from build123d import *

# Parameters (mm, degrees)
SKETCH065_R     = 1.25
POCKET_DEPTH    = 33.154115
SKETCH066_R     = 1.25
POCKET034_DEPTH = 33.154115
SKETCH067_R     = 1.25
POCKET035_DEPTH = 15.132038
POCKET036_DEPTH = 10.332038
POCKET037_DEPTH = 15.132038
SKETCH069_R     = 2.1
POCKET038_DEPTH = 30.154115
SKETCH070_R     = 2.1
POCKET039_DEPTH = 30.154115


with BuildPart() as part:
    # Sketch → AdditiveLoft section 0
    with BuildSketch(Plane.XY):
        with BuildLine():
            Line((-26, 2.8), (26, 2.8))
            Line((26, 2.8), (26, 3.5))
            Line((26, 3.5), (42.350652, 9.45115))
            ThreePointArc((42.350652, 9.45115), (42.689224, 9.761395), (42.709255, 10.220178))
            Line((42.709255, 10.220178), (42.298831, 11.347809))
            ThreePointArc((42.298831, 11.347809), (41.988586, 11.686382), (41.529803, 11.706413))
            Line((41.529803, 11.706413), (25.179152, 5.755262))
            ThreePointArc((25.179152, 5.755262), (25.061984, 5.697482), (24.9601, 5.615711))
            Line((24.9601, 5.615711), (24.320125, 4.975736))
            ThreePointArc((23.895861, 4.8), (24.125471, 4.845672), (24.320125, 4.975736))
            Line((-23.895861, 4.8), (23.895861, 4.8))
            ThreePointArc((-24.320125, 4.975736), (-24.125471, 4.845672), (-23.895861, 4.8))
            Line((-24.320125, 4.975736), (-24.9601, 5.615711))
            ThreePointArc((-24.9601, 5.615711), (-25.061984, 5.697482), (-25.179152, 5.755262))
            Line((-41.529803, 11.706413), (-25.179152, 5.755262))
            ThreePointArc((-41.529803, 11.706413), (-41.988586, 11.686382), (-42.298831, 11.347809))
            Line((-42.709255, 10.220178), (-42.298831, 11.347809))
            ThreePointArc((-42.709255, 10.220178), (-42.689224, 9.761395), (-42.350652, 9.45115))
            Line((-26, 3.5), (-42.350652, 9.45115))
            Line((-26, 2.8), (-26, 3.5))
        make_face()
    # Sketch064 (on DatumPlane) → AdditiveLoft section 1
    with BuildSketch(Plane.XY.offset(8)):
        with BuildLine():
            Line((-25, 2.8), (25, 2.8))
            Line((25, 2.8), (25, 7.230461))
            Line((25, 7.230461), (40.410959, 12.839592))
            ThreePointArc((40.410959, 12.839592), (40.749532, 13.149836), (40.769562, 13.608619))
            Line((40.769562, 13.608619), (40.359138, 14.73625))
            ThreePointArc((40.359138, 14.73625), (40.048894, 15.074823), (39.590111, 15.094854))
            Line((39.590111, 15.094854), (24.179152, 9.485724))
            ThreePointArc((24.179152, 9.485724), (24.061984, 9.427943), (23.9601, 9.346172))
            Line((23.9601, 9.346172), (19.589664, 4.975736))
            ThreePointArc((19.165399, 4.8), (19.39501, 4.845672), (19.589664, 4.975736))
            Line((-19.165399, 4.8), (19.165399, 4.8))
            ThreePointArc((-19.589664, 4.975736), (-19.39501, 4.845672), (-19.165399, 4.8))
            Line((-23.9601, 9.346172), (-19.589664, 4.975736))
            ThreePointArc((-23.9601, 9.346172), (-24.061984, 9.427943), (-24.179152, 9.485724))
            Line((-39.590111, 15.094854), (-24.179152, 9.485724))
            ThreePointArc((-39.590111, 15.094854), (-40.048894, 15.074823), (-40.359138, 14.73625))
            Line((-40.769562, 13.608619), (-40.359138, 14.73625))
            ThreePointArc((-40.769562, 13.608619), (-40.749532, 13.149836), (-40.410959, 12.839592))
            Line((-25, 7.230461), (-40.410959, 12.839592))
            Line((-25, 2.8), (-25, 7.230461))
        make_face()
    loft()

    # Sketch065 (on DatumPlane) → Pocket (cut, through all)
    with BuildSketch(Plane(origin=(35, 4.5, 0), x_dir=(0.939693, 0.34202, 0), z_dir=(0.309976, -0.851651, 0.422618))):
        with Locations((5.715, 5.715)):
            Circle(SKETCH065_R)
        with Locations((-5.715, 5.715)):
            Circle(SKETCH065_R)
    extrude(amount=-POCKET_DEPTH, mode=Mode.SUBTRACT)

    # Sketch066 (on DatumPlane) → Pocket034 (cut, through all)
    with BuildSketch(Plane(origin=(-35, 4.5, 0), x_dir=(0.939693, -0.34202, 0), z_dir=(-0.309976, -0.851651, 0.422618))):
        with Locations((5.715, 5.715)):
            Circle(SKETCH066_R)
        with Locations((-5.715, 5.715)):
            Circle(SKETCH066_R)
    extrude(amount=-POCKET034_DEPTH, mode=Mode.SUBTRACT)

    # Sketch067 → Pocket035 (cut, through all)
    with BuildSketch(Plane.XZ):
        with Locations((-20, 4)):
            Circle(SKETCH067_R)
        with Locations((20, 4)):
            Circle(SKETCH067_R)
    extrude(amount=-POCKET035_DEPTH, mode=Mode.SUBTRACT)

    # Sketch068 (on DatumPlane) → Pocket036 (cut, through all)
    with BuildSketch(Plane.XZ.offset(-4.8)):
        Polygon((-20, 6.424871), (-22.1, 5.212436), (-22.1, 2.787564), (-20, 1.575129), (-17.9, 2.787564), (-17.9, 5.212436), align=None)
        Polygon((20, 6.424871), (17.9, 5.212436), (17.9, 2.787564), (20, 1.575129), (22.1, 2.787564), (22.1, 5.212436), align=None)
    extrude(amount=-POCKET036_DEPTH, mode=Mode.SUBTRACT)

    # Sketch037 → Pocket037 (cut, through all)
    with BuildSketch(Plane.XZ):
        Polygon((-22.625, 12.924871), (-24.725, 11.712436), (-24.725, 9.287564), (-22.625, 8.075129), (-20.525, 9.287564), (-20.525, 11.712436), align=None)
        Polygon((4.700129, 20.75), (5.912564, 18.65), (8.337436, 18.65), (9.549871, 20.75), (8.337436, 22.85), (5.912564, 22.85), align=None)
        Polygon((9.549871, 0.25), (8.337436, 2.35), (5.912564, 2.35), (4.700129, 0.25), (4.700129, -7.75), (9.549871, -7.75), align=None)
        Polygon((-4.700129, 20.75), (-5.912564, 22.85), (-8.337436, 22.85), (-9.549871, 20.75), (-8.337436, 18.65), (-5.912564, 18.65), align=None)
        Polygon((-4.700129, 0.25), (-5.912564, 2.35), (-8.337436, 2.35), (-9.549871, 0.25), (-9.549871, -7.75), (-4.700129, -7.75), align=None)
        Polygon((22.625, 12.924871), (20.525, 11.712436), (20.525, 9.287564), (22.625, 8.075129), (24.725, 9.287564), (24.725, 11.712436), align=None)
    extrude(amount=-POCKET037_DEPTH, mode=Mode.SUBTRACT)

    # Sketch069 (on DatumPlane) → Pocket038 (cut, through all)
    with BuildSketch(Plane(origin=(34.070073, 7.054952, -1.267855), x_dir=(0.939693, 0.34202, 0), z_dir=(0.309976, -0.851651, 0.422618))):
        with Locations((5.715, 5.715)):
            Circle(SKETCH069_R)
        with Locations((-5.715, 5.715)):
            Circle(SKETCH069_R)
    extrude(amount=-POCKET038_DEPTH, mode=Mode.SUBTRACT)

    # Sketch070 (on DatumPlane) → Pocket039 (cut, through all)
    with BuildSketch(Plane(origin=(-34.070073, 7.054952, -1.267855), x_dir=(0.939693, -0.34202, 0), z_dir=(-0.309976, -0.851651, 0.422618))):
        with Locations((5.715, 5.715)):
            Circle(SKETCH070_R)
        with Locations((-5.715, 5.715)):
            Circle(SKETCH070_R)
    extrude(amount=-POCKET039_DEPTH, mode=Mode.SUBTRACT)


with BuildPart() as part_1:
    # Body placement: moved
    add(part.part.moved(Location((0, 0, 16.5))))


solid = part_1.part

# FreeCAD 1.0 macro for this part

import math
import FreeCAD as App
import Part
import Sketcher

V = App.Vector
Q = App.Units.Quantity


def add_polygon(sketch, points):
    """Adds a closed chain of lines whose ends are joined by coincident constraints."""
    first, n = sketch.GeometryCount, len(points)
    for a, b in zip(points, points[1:] + points[:1]):
        sketch.addGeometry(Part.LineSegment(App.Vector(*a, 0), App.Vector(*b, 0)), False)
    for i in range(n):
        sketch.addConstraint(Sketcher.Constraint("Coincident", first + i, 2, first + (i + 1) % n, 1))

doc = App.newDocument("Part")
body = doc.addObject("PartDesign::Body", "Body")

sketch1 = body.newObject("Sketcher::SketchObject", "Sketch")
sketch1.AttachmentSupport = (doc.getObject("XY_Plane"), [""])
sketch1.MapMode = "FlatFace"
sketch1.addGeometry(Part.LineSegment(V(-26, 2.8, 0), V(26, 2.8, 0)), False)
sketch1.addGeometry(Part.LineSegment(V(26, 2.8, 0), V(26, 3.5, 0)), False)
sketch1.addGeometry(Part.LineSegment(V(26, 3.5, 0), V(42.35, 9.45, 0)), False)
sketch1.addGeometry(Part.ArcOfCircle(Part.Circle(V(42.15, 10.01, 0), V(0, 0, 1), 0.6), math.radians(-70), math.radians(20)), False)
sketch1.addGeometry(Part.LineSegment(V(42.71, 10.22, 0), V(42.3, 11.35, 0)), False)
sketch1.addGeometry(Part.ArcOfCircle(Part.Circle(V(41.74, 11.14, 0), V(0, 0, 1), 0.6), math.radians(20), math.radians(110)), False)
sketch1.addGeometry(Part.LineSegment(V(41.53, 11.71, 0), V(25.18, 5.76, 0)), False)
sketch1.addGeometry(Part.ArcOfCircle(Part.Circle(V(25.38, 5.19, 0), V(0, 0, 1), 0.6), math.radians(110), math.radians(135)), False)
sketch1.addGeometry(Part.LineSegment(V(24.96, 5.62, 0), V(24.32, 4.98, 0)), False)
sketch1.addGeometry(Part.ArcOfCircle(Part.Circle(V(23.9, 5.4, 0), V(0, 0, 1), 0.6), math.radians(-90), math.radians(-45)), False)
sketch1.addGeometry(Part.LineSegment(V(23.9, 4.8, 0), V(-23.9, 4.8, 0)), False)
sketch1.addGeometry(Part.ArcOfCircle(Part.Circle(V(-23.9, 5.4, 0), V(0, 0, 1), 0.6), math.radians(-135), math.radians(-90)), False)
sketch1.addGeometry(Part.LineSegment(V(-24.32, 4.98, 0), V(-24.96, 5.62, 0)), False)
sketch1.addGeometry(Part.ArcOfCircle(Part.Circle(V(-25.38, 5.19, 0), V(0, 0, 1), 0.6), math.radians(45), math.radians(70)), False)
sketch1.addGeometry(Part.LineSegment(V(-25.18, 5.76, 0), V(-41.53, 11.71, 0)), False)
sketch1.addGeometry(Part.ArcOfCircle(Part.Circle(V(-41.74, 11.14, 0), V(0, 0, 1), 0.6), math.radians(70), math.radians(160)), False)
sketch1.addGeometry(Part.LineSegment(V(-42.3, 11.35, 0), V(-42.71, 10.22, 0)), False)
sketch1.addGeometry(Part.ArcOfCircle(Part.Circle(V(-42.15, 10.01, 0), V(0, 0, 1), 0.6), math.radians(160), math.radians(250)), False)
sketch1.addGeometry(Part.LineSegment(V(-42.35, 9.45, 0), V(-26, 3.5, 0)), False)
sketch1.addGeometry(Part.LineSegment(V(-26, 3.5, 0), V(-26, 2.8, 0)), False)
sketch1.addConstraint(Sketcher.Constraint("Coincident", 0, 2, 1, 1))
sketch1.addConstraint(Sketcher.Constraint("Coincident", 1, 2, 2, 1))
sketch1.addConstraint(Sketcher.Constraint("Coincident", 2, 2, 3, 1))
sketch1.addConstraint(Sketcher.Constraint("Tangent", 3, 2, 4, 1))
sketch1.addConstraint(Sketcher.Constraint("Tangent", 4, 2, 5, 1))
sketch1.addConstraint(Sketcher.Constraint("Tangent", 5, 2, 6, 1))
sketch1.addConstraint(Sketcher.Constraint("Coincident", 6, 2, 7, 1))
sketch1.addConstraint(Sketcher.Constraint("Coincident", 7, 2, 8, 1))
sketch1.addConstraint(Sketcher.Constraint("Coincident", 8, 2, 9, 2))
sketch1.addConstraint(Sketcher.Constraint("Coincident", 9, 1, 10, 1))
sketch1.addConstraint(Sketcher.Constraint("Coincident", 10, 2, 11, 2))
sketch1.addConstraint(Sketcher.Constraint("Coincident", 11, 1, 12, 1))
sketch1.addConstraint(Sketcher.Constraint("Coincident", 12, 2, 13, 1))
sketch1.addConstraint(Sketcher.Constraint("Coincident", 13, 2, 14, 1))
sketch1.addConstraint(Sketcher.Constraint("Tangent", 14, 2, 15, 1))
sketch1.addConstraint(Sketcher.Constraint("Tangent", 15, 2, 16, 1))
sketch1.addConstraint(Sketcher.Constraint("Tangent", 16, 2, 17, 1))
sketch1.addConstraint(Sketcher.Constraint("Coincident", 17, 2, 18, 1))
sketch1.addConstraint(Sketcher.Constraint("Coincident", 18, 2, 19, 1))
sketch1.addConstraint(Sketcher.Constraint("Coincident", 19, 2, 0, 1))
sketch1.addConstraint(Sketcher.Constraint("Horizontal", 0))
sketch1.addConstraint(Sketcher.Constraint("Vertical", 1))
sketch1.addConstraint(Sketcher.Constraint("Horizontal", 10))
sketch1.addConstraint(Sketcher.Constraint("Vertical", 19))
sketch1.addConstraint(Sketcher.Constraint("Equal", 3, 5))
sketch1.addConstraint(Sketcher.Constraint("Equal", 9, 11))
sketch1.addConstraint(Sketcher.Constraint("Equal", 7, 13))
sketch1.addConstraint(Sketcher.Constraint("Equal", 5, 15))
sketch1.addConstraint(Sketcher.Constraint("Equal", 15, 17))
sketch1.addConstraint(Sketcher.Constraint("Symmetric", 7, 3, 13, 3, -2))
sketch1.addConstraint(Sketcher.Constraint("Symmetric", 5, 3, 15, 3, -2))
sketch1.addConstraint(Sketcher.Constraint("Symmetric", 3, 3, 17, 3, -2))
sketch1.addConstraint(Sketcher.Constraint("Symmetric", 8, 2, 11, 1, -2))
sketch1.addConstraint(Sketcher.Constraint("Symmetric", 1, 2, 18, 2, -2))
sketch1.addConstraint(Sketcher.Constraint("Perpendicular", 2, 4))
sketch1.addConstraint(Sketcher.Constraint("Perpendicular", 4, 6))
sketch1.addConstraint(Sketcher.Constraint("Perpendicular", 8, 12))
sketch1.addConstraint(Sketcher.Constraint("Horizontal", 7, 2, 12, 2))
sketch1.addConstraint(Sketcher.Constraint("Horizontal", 6, 2, 13, 2))
sketch1.addConstraint(Sketcher.Constraint("Horizontal", 2, 2, 17, 2))
sketch1.addConstraint(Sketcher.Constraint("Vertical", 11, 3, 10, 2))
sketch1.addConstraint(Sketcher.Constraint("Equal", 2, 6))
sketch1.addConstraint(Sketcher.Constraint("Radius", 3, Q("0.600001 mm")))
sketch1.addConstraint(Sketcher.Constraint("DistanceX", 0, 1, 0, 2, Q("52 mm")))
sketch1.addConstraint(Sketcher.Constraint("Angle", 2, Q("19.999998 deg")))
sketch1.addConstraint(Sketcher.Constraint("DistanceY", 1, 1, 1, 2, Q("0.7 mm")))
sketch1.addConstraint(Sketcher.Constraint("DistanceY", 19, 2, 10, 2, Q("2 mm")))
sketch1.addConstraint(Sketcher.Constraint("Distance", 2, Q("17.4 mm")))
sketch1.addConstraint(Sketcher.Constraint("Distance", 4, Q("1.2 mm")))
sketch1.addConstraint(Sketcher.Constraint("DistanceY", -1, 1, 0, 2, Q("2.8 mm")))
sketch1.addConstraint(Sketcher.Constraint("Radius", 7, Q("0.599976 mm")))
sketch1.addConstraint(Sketcher.Constraint("Radius", 9, Q("0.599996 mm")))
sketch1.addConstraint(Sketcher.Constraint("DistanceX", -1, 1, 7, 2, Q("24.9601 mm")))
sketch1.addConstraint(Sketcher.Constraint("DistanceY", 7, 3, 3, 3, Q("4.823499 mm")))
sketch1.addConstraint(Sketcher.Constraint("DistanceY", 9, 3, 5, 3, Q("5.7426 mm")))
sketch1.addConstraint(Sketcher.Constraint("Distance", 8, Q("0.905061 mm")))
sketch1.addConstraint(Sketcher.Constraint("DistanceX", 10, 2, 10, 1, Q("47.791722 mm")))

sketch2 = body.newObject("Sketcher::SketchObject", "Sketch001")
sketch2.AttachmentSupport = (doc.getObject("XY_Plane"), [""])
sketch2.MapMode = "FlatFace"
sketch2.AttachmentOffset = App.Placement(V(0, 0, 8), App.Rotation())
sketch2.addGeometry(Part.LineSegment(V(-25, 2.8, 0), V(25, 2.8, 0)), False)
sketch2.addGeometry(Part.LineSegment(V(25, 2.8, 0), V(25, 7.23, 0)), False)
sketch2.addGeometry(Part.LineSegment(V(25, 7.23, 0), V(40.41, 12.84, 0)), False)
sketch2.addGeometry(Part.ArcOfCircle(Part.Circle(V(40.21, 13.4, 0), V(0, 0, 1), 0.6), math.radians(-70), math.radians(20)), False)
sketch2.addGeometry(Part.LineSegment(V(40.77, 13.61, 0), V(40.36, 14.74, 0)), False)
sketch2.addGeometry(Part.ArcOfCircle(Part.Circle(V(39.8, 14.53, 0), V(0, 0, 1), 0.6), math.radians(20), math.radians(110)), False)
sketch2.addGeometry(Part.LineSegment(V(39.59, 15.09, 0), V(24.18, 9.49, 0)), False)
sketch2.addGeometry(Part.ArcOfCircle(Part.Circle(V(24.38, 8.92, 0), V(0, 0, 1), 0.6), math.radians(110), math.radians(135)), False)
sketch2.addGeometry(Part.LineSegment(V(23.96, 9.35, 0), V(19.59, 4.98, 0)), False)
sketch2.addGeometry(Part.ArcOfCircle(Part.Circle(V(19.17, 5.4, 0), V(0, 0, 1), 0.6), math.radians(-90), math.radians(-45)), False)
sketch2.addGeometry(Part.LineSegment(V(19.17, 4.8, 0), V(-19.17, 4.8, 0)), False)
sketch2.addGeometry(Part.ArcOfCircle(Part.Circle(V(-19.17, 5.4, 0), V(0, 0, 1), 0.6), math.radians(-135), math.radians(-90)), False)
sketch2.addGeometry(Part.LineSegment(V(-19.59, 4.98, 0), V(-23.96, 9.35, 0)), False)
sketch2.addGeometry(Part.ArcOfCircle(Part.Circle(V(-24.38, 8.92, 0), V(0, 0, 1), 0.6), math.radians(45), math.radians(70)), False)
sketch2.addGeometry(Part.LineSegment(V(-24.18, 9.49, 0), V(-39.59, 15.09, 0)), False)
sketch2.addGeometry(Part.ArcOfCircle(Part.Circle(V(-39.8, 14.53, 0), V(0, 0, 1), 0.6), math.radians(70), math.radians(160)), False)
sketch2.addGeometry(Part.LineSegment(V(-40.36, 14.74, 0), V(-40.77, 13.61, 0)), False)
sketch2.addGeometry(Part.ArcOfCircle(Part.Circle(V(-40.21, 13.4, 0), V(0, 0, 1), 0.6), math.radians(160), math.radians(250)), False)
sketch2.addGeometry(Part.LineSegment(V(-40.41, 12.84, 0), V(-25, 7.23, 0)), False)
sketch2.addGeometry(Part.LineSegment(V(-25, 7.23, 0), V(-25, 2.8, 0)), False)
sketch2.addConstraint(Sketcher.Constraint("Coincident", 0, 2, 1, 1))
sketch2.addConstraint(Sketcher.Constraint("Coincident", 1, 2, 2, 1))
sketch2.addConstraint(Sketcher.Constraint("Coincident", 2, 2, 3, 1))
sketch2.addConstraint(Sketcher.Constraint("Coincident", 3, 2, 4, 1))
sketch2.addConstraint(Sketcher.Constraint("Coincident", 4, 2, 5, 1))
sketch2.addConstraint(Sketcher.Constraint("Tangent", 5, 2, 6, 1))
sketch2.addConstraint(Sketcher.Constraint("Tangent", 6, 2, 7, 1))
sketch2.addConstraint(Sketcher.Constraint("Coincident", 7, 2, 8, 1))
sketch2.addConstraint(Sketcher.Constraint("Coincident", 8, 2, 9, 2))
sketch2.addConstraint(Sketcher.Constraint("Coincident", 9, 1, 10, 1))
sketch2.addConstraint(Sketcher.Constraint("Coincident", 10, 2, 11, 2))
sketch2.addConstraint(Sketcher.Constraint("Coincident", 11, 1, 12, 1))
sketch2.addConstraint(Sketcher.Constraint("Coincident", 12, 2, 13, 1))
sketch2.addConstraint(Sketcher.Constraint("Tangent", 13, 2, 14, 1))
sketch2.addConstraint(Sketcher.Constraint("Tangent", 14, 2, 15, 1))
sketch2.addConstraint(Sketcher.Constraint("Coincident", 15, 2, 16, 1))
sketch2.addConstraint(Sketcher.Constraint("Coincident", 16, 2, 17, 1))
sketch2.addConstraint(Sketcher.Constraint("Coincident", 17, 2, 18, 1))
sketch2.addConstraint(Sketcher.Constraint("Coincident", 18, 2, 19, 1))
sketch2.addConstraint(Sketcher.Constraint("Coincident", 19, 2, 0, 1))
sketch2.addConstraint(Sketcher.Constraint("Horizontal", 0))
sketch2.addConstraint(Sketcher.Constraint("Vertical", 1))
sketch2.addConstraint(Sketcher.Constraint("Horizontal", 10))
sketch2.addConstraint(Sketcher.Constraint("Vertical", 19))
sketch2.addConstraint(Sketcher.Constraint("Equal", 3, 5))
sketch2.addConstraint(Sketcher.Constraint("Equal", 3, 7))
sketch2.addConstraint(Sketcher.Constraint("Equal", 7, 9))
sketch2.addConstraint(Sketcher.Constraint("Equal", 9, 11))
sketch2.addConstraint(Sketcher.Constraint("Equal", 11, 13))
sketch2.addConstraint(Sketcher.Constraint("Equal", 5, 15))
sketch2.addConstraint(Sketcher.Constraint("Equal", 15, 17))
sketch2.addConstraint(Sketcher.Constraint("Symmetric", 7, 3, 13, 3, -2))
sketch2.addConstraint(Sketcher.Constraint("Symmetric", 5, 3, 15, 3, -2))
sketch2.addConstraint(Sketcher.Constraint("Symmetric", 3, 3, 17, 3, -2))
sketch2.addConstraint(Sketcher.Constraint("Symmetric", 8, 2, 11, 1, -2))
sketch2.addConstraint(Sketcher.Constraint("Symmetric", 1, 2, 18, 2, -2))
sketch2.addConstraint(Sketcher.Constraint("Perpendicular", 2, 4))
sketch2.addConstraint(Sketcher.Constraint("Perpendicular", 4, 6))
sketch2.addConstraint(Sketcher.Constraint("Perpendicular", 8, 12))
sketch2.addConstraint(Sketcher.Constraint("Horizontal", 7, 2, 12, 2))
sketch2.addConstraint(Sketcher.Constraint("Horizontal", 4, 2, 15, 2))
sketch2.addConstraint(Sketcher.Constraint("Horizontal", 3, 2, 16, 2))
sketch2.addConstraint(Sketcher.Constraint("Horizontal", 2, 2, 17, 2))
sketch2.addConstraint(Sketcher.Constraint("Equal", 2, 6))
sketch2.addConstraint(Sketcher.Constraint("Radius", 5, Q("0.599999 mm")))
sketch2.addConstraint(Sketcher.Constraint("DistanceX", 0, 1, 0, 2, Q("50 mm")))
sketch2.addConstraint(Sketcher.Constraint("Angle", 2, Q("20.000002 deg")))
sketch2.addConstraint(Sketcher.Constraint("DistanceY", 0, 2, 9, 1, Q("2 mm")))
sketch2.addConstraint(Sketcher.Constraint("Distance", 2, Q("16.4 mm")))
sketch2.addConstraint(Sketcher.Constraint("Distance", 4, Q("1.2 mm")))
sketch2.addConstraint(Sketcher.Constraint("DistanceY", -1, 1, 0, 2, Q("2.8 mm")))
sketch2.addConstraint(Sketcher.Constraint("DistanceY", 1, 1, 1, 2, Q("4.430461 mm")))
sketch2.addConstraint(Sketcher.Constraint("DistanceX", -1, 1, 9, 3, Q("19.165401 mm")))
sketch2.addConstraint(Sketcher.Constraint("DistanceX", -1, 1, 7, 2, Q("23.9601 mm")))
sketch2.addConstraint(Sketcher.Constraint("DistanceX", -1, 1, 9, 1, Q("19.165399 mm")))
sketch2.addConstraint(Sketcher.Constraint("DistanceX", 10, 2, -1, 1, Q("19.165399 mm")))
sketch2.addConstraint(Sketcher.Constraint("DistanceX", 7, 3, 3, 2, Q("16.385199 mm")))
sketch2.addConstraint(Sketcher.Constraint("DistanceX", 8, 2, 7, 3, Q("4.794699 mm")))
sketch2.addConstraint(Sketcher.Constraint("Distance", 8, Q("6.18073 mm")))

additiveloft = body.newObject("PartDesign::AdditiveLoft", "AdditiveLoft")
additiveloft.Profile = sketch1
additiveloft.Sections = [sketch2]

sketch3 = body.newObject("Sketcher::SketchObject", "Sketch002")
sketch3.Placement = App.Placement(V(35, 4.5, 0), App.Rotation(V(0.939692524, 0.342020408, -0.000000255), V(-0.144543726, 0.397130951, 0.906307959), V(0.309975919, -0.851650778, 0.42261789), "ZXY"))
sketch3.addGeometry(Part.Circle(V(5.7, 5.7, 0), V(0, 0, 1), 1.2), False)
sketch3.addGeometry(Part.Circle(V(-5.7, 5.7, 0), V(0, 0, 1), 1.2), False)
sketch3.addConstraint(Sketcher.Constraint("Equal", 0, 1))
sketch3.addConstraint(Sketcher.Constraint("Symmetric", 0, 3, 1, 3, -2))
sketch3.addConstraint(Sketcher.Constraint("Diameter", 0, Q("2.5 mm")))
sketch3.addConstraint(Sketcher.Constraint("DistanceX", 1, 3, 0, 3, Q("11.43 mm")))
sketch3.addConstraint(Sketcher.Constraint("DistanceY", -1, 1, 0, 3, Q("5.715 mm")))
pocket1 = body.newObject("PartDesign::Pocket", "Pocket")
pocket1.Profile = sketch3
pocket1.Type = "ThroughAll"

sketch4 = body.newObject("Sketcher::SketchObject", "Sketch003")
sketch4.Placement = App.Placement(V(-35, 4.5, 0), App.Rotation(V(0.939692524, -0.342020408, 0.000000255), V(0.144543726, 0.397130951, 0.906307959), V(-0.309975919, -0.851650778, 0.42261789), "ZXY"))
sketch4.addGeometry(Part.Circle(V(5.7, 5.7, 0), V(0, 0, 1), 1.2), False)
sketch4.addGeometry(Part.Circle(V(-5.7, 5.7, 0), V(0, 0, 1), 1.2), False)
sketch4.addConstraint(Sketcher.Constraint("Equal", 0, 1))
sketch4.addConstraint(Sketcher.Constraint("Symmetric", 0, 3, 1, 3, -2))
sketch4.addConstraint(Sketcher.Constraint("Diameter", 0, Q("2.5 mm")))
sketch4.addConstraint(Sketcher.Constraint("DistanceX", 1, 3, 0, 3, Q("11.43 mm")))
sketch4.addConstraint(Sketcher.Constraint("DistanceY", -1, 1, 0, 3, Q("5.715 mm")))
pocket2 = body.newObject("PartDesign::Pocket", "Pocket001")
pocket2.Profile = sketch4
pocket2.Type = "ThroughAll"

sketch5 = body.newObject("Sketcher::SketchObject", "Sketch004")
sketch5.AttachmentSupport = (doc.getObject("XZ_Plane"), [""])
sketch5.MapMode = "FlatFace"
sketch5.addGeometry(Part.Circle(V(-20, 4, 0), V(0, 0, 1), 1.2), False)
sketch5.addGeometry(Part.Circle(V(20, 4, 0), V(0, 0, 1), 1.2), False)
sketch5.addConstraint(Sketcher.Constraint("Equal", 0, 1))
sketch5.addConstraint(Sketcher.Constraint("Symmetric", 0, 3, 1, 3, -2))
sketch5.addConstraint(Sketcher.Constraint("Diameter", 0, Q("2.5 mm")))
sketch5.addConstraint(Sketcher.Constraint("DistanceX", 0, 3, -1, 1, Q("20 mm")))
sketch5.addConstraint(Sketcher.Constraint("DistanceY", -1, 1, 0, 3, Q("4 mm")))
pocket3 = body.newObject("PartDesign::Pocket", "Pocket002")
pocket3.Profile = sketch5
pocket3.Type = "ThroughAll"

sketch6 = body.newObject("Sketcher::SketchObject", "Sketch005")
sketch6.AttachmentSupport = (doc.getObject("XZ_Plane"), [""])
sketch6.MapMode = "FlatFace"
sketch6.AttachmentOffset = App.Placement(V(0, 0, -4.8), App.Rotation())
add_polygon(sketch6, [(-20, 6.4), (-22.1, 5.2), (-22.1, 2.8), (-20, 1.6), (-17.9, 2.8), (-17.9, 5.2)])
add_polygon(sketch6, [(20, 6.4), (17.9, 5.2), (17.9, 2.8), (20, 1.6), (22.1, 2.8), (22.1, 5.2)])
sketch6.addConstraint(Sketcher.Constraint("Vertical", 1))
sketch6.addConstraint(Sketcher.Constraint("Vertical", 4))
sketch6.addConstraint(Sketcher.Constraint("Vertical", 7))
sketch6.addConstraint(Sketcher.Constraint("Vertical", 10))
sketch6.addConstraint(Sketcher.Constraint("Symmetric", 4, 2, 6, 2, -2))
sketch6.addConstraint(Sketcher.Constraint("Symmetric", 2, 2, 8, 2, -2))
sketch6.addConstraint(Sketcher.Constraint("Symmetric", 1, 2, 9, 2, -2))
sketch6.addConstraint(Sketcher.Constraint("Symmetric", 5, 2, 11, 2, -2))
sketch6.addConstraint(Sketcher.Constraint("Parallel", 0, 3))
sketch6.addConstraint(Sketcher.Constraint("Parallel", 2, 5))
sketch6.addConstraint(Sketcher.Constraint("Parallel", 3, 6))
sketch6.addConstraint(Sketcher.Constraint("Parallel", 5, 8))
sketch6.addConstraint(Sketcher.Constraint("Parallel", 8, 11))
sketch6.addConstraint(Sketcher.Constraint("Horizontal", 1, 2, 3, 2))
sketch6.addConstraint(Sketcher.Constraint("Horizontal", 0, 2, 4, 2))
sketch6.addConstraint(Sketcher.Constraint("Angle", 0, Q("-150.000012 deg")))
sketch6.addConstraint(Sketcher.Constraint("DistanceX", 2, 2, -1, 1, Q("20 mm")))
sketch6.addConstraint(Sketcher.Constraint("DistanceX", 0, 2, -1, 1, Q("22.1 mm")))
sketch6.addConstraint(Sketcher.Constraint("DistanceY", 1, 2, 1, 1, Q("2.424872 mm")))
sketch6.addConstraint(Sketcher.Constraint("DistanceY", -1, 1, 2, 2, Q("1.575129 mm")))
pocket4 = body.newObject("PartDesign::Pocket", "Pocket003")
pocket4.Profile = sketch6
pocket4.Type = "ThroughAll"

sketch7 = body.newObject("Sketcher::SketchObject", "Sketch006")
sketch7.AttachmentSupport = (doc.getObject("XZ_Plane"), [""])
sketch7.MapMode = "FlatFace"
add_polygon(sketch7, [(-22.6, 12.9), (-24.7, 11.7), (-24.7, 9.3), (-22.6, 8.1), (-20.5, 9.3), (-20.5, 11.7)])
add_polygon(sketch7, [(4.7, 20.8), (5.9, 18.6), (8.3, 18.6), (9.5, 20.8), (8.3, 22.9), (5.9, 22.9)])
add_polygon(sketch7, [(9.5, 0.2), (8.3, 2.4), (5.9, 2.4), (4.7, 0.2), (4.7, -7.8), (9.5, -7.8)])
add_polygon(sketch7, [(-4.7, 20.8), (-5.9, 22.9), (-8.3, 22.9), (-9.5, 20.8), (-8.3, 18.6), (-5.9, 18.6)])
add_polygon(sketch7, [(-4.7, 0.2), (-5.9, 2.4), (-8.3, 2.4), (-9.5, 0.2), (-9.5, -7.8), (-4.7, -7.8)])
add_polygon(sketch7, [(22.6, 12.9), (20.5, 11.7), (20.5, 9.3), (22.6, 8.1), (24.7, 9.3), (24.7, 11.7)])
sketch7.addConstraint(Sketcher.Constraint("Vertical", 1))
sketch7.addConstraint(Sketcher.Constraint("Vertical", 4))
sketch7.addConstraint(Sketcher.Constraint("Horizontal", 7))
sketch7.addConstraint(Sketcher.Constraint("Horizontal", 10))
sketch7.addConstraint(Sketcher.Constraint("Horizontal", 13))
sketch7.addConstraint(Sketcher.Constraint("Vertical", 15))
sketch7.addConstraint(Sketcher.Constraint("Horizontal", 16))
sketch7.addConstraint(Sketcher.Constraint("Vertical", 17))
sketch7.addConstraint(Sketcher.Constraint("Horizontal", 19))
sketch7.addConstraint(Sketcher.Constraint("Horizontal", 22))
sketch7.addConstraint(Sketcher.Constraint("Horizontal", 25))
sketch7.addConstraint(Sketcher.Constraint("Vertical", 27))
sketch7.addConstraint(Sketcher.Constraint("Horizontal", 28))
sketch7.addConstraint(Sketcher.Constraint("Vertical", 29))
sketch7.addConstraint(Sketcher.Constraint("Vertical", 31))
sketch7.addConstraint(Sketcher.Constraint("Vertical", 34))
sketch7.addConstraint(Sketcher.Constraint("Symmetric", 10, 2, 18, 2, -2))
sketch7.addConstraint(Sketcher.Constraint("Symmetric", 8, 2, 20, 2, -2))
sketch7.addConstraint(Sketcher.Constraint("Symmetric", 7, 2, 21, 2, -2))
sketch7.addConstraint(Sketcher.Constraint("Symmetric", 11, 2, 23, 2, -2))
sketch7.addConstraint(Sketcher.Constraint("Symmetric", 13, 2, 24, 2, -2))
sketch7.addConstraint(Sketcher.Constraint("Symmetric", 17, 2, 26, 2, -2))
sketch7.addConstraint(Sketcher.Constraint("Symmetric", 15, 2, 28, 2, -2))
sketch7.addConstraint(Sketcher.Constraint("Symmetric", 4, 2, 30, 2, -2))
sketch7.addConstraint(Sketcher.Constraint("Symmetric", 2, 2, 32, 2, -2))
sketch7.addConstraint(Sketcher.Constraint("Symmetric", 1, 2, 33, 2, -2))
sketch7.addConstraint(Sketcher.Constraint("Symmetric", 5, 2, 35, 2, -2))
sketch7.addConstraint(Sketcher.Constraint("Parallel", 0, 3))
sketch7.addConstraint(Sketcher.Constraint("Parallel", 2, 5))
sketch7.addConstraint(Sketcher.Constraint("Perpendicular", 3, 6))
sketch7.addConstraint(Sketcher.Constraint("Perpendicular", 5, 8))
sketch7.addConstraint(Sketcher.Constraint("Parallel", 6, 9))
sketch7.addConstraint(Sketcher.Constraint("Parallel", 8, 11))
sketch7.addConstraint(Sketcher.Constraint("Parallel", 9, 12))
sketch7.addConstraint(Sketcher.Constraint("Parallel", 11, 14))
sketch7.addConstraint(Sketcher.Constraint("Parallel", 12, 18))
sketch7.addConstraint(Sketcher.Constraint("Parallel", 14, 20))
sketch7.addConstraint(Sketcher.Constraint("Parallel", 20, 23))
sketch7.addConstraint(Sketcher.Constraint("Parallel", 21, 24))
sketch7.addConstraint(Sketcher.Constraint("Parallel", 23, 26))
sketch7.addConstraint(Sketcher.Constraint("Perpendicular", 26, 32))
sketch7.addConstraint(Sketcher.Constraint("Parallel", 32, 35))
sketch7.addConstraint(Sketcher.Constraint("Horizontal", 1, 2, 3, 2))
sketch7.addConstraint(Sketcher.Constraint("Horizontal", 0, 2, 4, 2))
sketch7.addConstraint(Sketcher.Constraint("Horizontal", 8, 2, 11, 2))
sketch7.addConstraint(Sketcher.Constraint("Horizontal", 14, 2, 17, 2))
sketch7.addConstraint(Sketcher.Constraint("Vertical", 7, 2, 9, 2))
sketch7.addConstraint(Sketcher.Constraint("Vertical", 9, 2, 12, 2))
sketch7.addConstraint(Sketcher.Constraint("Vertical", 10, 2, 13, 2))
sketch7.addConstraint(Sketcher.Constraint("Vertical", 11, 2, 14, 2))
sketch7.addConstraint(Sketcher.Constraint("Equal", 25, 1))
sketch7.addConstraint(Sketcher.Constraint("Equal", 5, 6))
sketch7.addConstraint(Sketcher.Constraint("DistanceY", 15, 2, 15, 1, Q("8 mm")))
sketch7.addConstraint(Sketcher.Constraint("Angle", 0, Q("-150.000012 deg")))
sketch7.addConstraint(Sketcher.Constraint("DistanceX", 1, 2, 2, 2, Q("2.1 mm")))
sketch7.addConstraint(Sketcher.Constraint("DistanceY", 12, 2, 7, 2, Q("16.3 mm")))
sketch7.addConstraint(Sketcher.Constraint("DistanceY", -1, 1, 6, 2, Q("18.65 mm")))
sketch7.addConstraint(Sketcher.Constraint("DistanceX", 18, 2, 9, 2, Q("14.25 mm")))
sketch7.addConstraint(Sketcher.Constraint("DistanceX", 0, 2, -1, 1, Q("24.725 mm")))
sketch7.addConstraint(Sketcher.Constraint("DistanceX", 7, 1, 7, 2, Q("2.424872 mm")))
sketch7.addConstraint(Sketcher.Constraint("DistanceY", -1, 1, 2, 2, Q("8.075129 mm")))
pocket5 = body.newObject("PartDesign::Pocket", "Pocket004")
pocket5.Profile = sketch7
pocket5.Type = "ThroughAll"

sketch8 = body.newObject("Sketcher::SketchObject", "Sketch007")
sketch8.Placement = App.Placement(V(34.070073, 7.054952, -1.267855), App.Rotation(V(0.939692524, 0.342020408, -0.000000255), V(-0.144543726, 0.397130951, 0.906307959), V(0.309975919, -0.851650778, 0.42261789), "ZXY"))
sketch8.addGeometry(Part.Circle(V(5.7, 5.7, 0), V(0, 0, 1), 2.1), False)
sketch8.addGeometry(Part.Circle(V(-5.7, 5.7, 0), V(0, 0, 1), 2.1), False)
sketch8.addConstraint(Sketcher.Constraint("Equal", 0, 1))
sketch8.addConstraint(Sketcher.Constraint("Symmetric", 0, 3, 1, 3, -2))
sketch8.addConstraint(Sketcher.Constraint("Diameter", 0, Q("4.2 mm")))
sketch8.addConstraint(Sketcher.Constraint("DistanceX", 1, 3, 0, 3, Q("11.43 mm")))
sketch8.addConstraint(Sketcher.Constraint("DistanceY", -1, 1, 0, 3, Q("5.715 mm")))
pocket6 = body.newObject("PartDesign::Pocket", "Pocket005")
pocket6.Profile = sketch8
pocket6.Type = "ThroughAll"

sketch9 = body.newObject("Sketcher::SketchObject", "Sketch008")
sketch9.Placement = App.Placement(V(-34.070073, 7.054952, -1.267855), App.Rotation(V(0.939692524, -0.342020408, 0.000000255), V(0.144543726, 0.397130951, 0.906307959), V(-0.309975919, -0.851650778, 0.42261789), "ZXY"))
sketch9.addGeometry(Part.Circle(V(5.7, 5.7, 0), V(0, 0, 1), 2.1), False)
sketch9.addGeometry(Part.Circle(V(-5.7, 5.7, 0), V(0, 0, 1), 2.1), False)
sketch9.addConstraint(Sketcher.Constraint("Equal", 0, 1))
sketch9.addConstraint(Sketcher.Constraint("Symmetric", 0, 3, 1, 3, -2))
sketch9.addConstraint(Sketcher.Constraint("Diameter", 0, Q("4.2 mm")))
sketch9.addConstraint(Sketcher.Constraint("DistanceX", 1, 3, 0, 3, Q("11.43 mm")))
sketch9.addConstraint(Sketcher.Constraint("DistanceY", -1, 1, 0, 3, Q("5.715 mm")))
pocket7 = body.newObject("PartDesign::Pocket", "Pocket006")
pocket7.Profile = sketch9
pocket7.Type = "ThroughAll"
body2 = doc.addObject("PartDesign::Body", "Body001")
doc.recompute()

body.Placement = App.Placement(V(0, 0, 16.5), App.Rotation(V(0, 0, 1), 0))
boolean = body2.newObject("PartDesign::Boolean", "Boolean")
boolean.Type = "Fuse"
boolean.addObjects([body])

doc.recompute()
